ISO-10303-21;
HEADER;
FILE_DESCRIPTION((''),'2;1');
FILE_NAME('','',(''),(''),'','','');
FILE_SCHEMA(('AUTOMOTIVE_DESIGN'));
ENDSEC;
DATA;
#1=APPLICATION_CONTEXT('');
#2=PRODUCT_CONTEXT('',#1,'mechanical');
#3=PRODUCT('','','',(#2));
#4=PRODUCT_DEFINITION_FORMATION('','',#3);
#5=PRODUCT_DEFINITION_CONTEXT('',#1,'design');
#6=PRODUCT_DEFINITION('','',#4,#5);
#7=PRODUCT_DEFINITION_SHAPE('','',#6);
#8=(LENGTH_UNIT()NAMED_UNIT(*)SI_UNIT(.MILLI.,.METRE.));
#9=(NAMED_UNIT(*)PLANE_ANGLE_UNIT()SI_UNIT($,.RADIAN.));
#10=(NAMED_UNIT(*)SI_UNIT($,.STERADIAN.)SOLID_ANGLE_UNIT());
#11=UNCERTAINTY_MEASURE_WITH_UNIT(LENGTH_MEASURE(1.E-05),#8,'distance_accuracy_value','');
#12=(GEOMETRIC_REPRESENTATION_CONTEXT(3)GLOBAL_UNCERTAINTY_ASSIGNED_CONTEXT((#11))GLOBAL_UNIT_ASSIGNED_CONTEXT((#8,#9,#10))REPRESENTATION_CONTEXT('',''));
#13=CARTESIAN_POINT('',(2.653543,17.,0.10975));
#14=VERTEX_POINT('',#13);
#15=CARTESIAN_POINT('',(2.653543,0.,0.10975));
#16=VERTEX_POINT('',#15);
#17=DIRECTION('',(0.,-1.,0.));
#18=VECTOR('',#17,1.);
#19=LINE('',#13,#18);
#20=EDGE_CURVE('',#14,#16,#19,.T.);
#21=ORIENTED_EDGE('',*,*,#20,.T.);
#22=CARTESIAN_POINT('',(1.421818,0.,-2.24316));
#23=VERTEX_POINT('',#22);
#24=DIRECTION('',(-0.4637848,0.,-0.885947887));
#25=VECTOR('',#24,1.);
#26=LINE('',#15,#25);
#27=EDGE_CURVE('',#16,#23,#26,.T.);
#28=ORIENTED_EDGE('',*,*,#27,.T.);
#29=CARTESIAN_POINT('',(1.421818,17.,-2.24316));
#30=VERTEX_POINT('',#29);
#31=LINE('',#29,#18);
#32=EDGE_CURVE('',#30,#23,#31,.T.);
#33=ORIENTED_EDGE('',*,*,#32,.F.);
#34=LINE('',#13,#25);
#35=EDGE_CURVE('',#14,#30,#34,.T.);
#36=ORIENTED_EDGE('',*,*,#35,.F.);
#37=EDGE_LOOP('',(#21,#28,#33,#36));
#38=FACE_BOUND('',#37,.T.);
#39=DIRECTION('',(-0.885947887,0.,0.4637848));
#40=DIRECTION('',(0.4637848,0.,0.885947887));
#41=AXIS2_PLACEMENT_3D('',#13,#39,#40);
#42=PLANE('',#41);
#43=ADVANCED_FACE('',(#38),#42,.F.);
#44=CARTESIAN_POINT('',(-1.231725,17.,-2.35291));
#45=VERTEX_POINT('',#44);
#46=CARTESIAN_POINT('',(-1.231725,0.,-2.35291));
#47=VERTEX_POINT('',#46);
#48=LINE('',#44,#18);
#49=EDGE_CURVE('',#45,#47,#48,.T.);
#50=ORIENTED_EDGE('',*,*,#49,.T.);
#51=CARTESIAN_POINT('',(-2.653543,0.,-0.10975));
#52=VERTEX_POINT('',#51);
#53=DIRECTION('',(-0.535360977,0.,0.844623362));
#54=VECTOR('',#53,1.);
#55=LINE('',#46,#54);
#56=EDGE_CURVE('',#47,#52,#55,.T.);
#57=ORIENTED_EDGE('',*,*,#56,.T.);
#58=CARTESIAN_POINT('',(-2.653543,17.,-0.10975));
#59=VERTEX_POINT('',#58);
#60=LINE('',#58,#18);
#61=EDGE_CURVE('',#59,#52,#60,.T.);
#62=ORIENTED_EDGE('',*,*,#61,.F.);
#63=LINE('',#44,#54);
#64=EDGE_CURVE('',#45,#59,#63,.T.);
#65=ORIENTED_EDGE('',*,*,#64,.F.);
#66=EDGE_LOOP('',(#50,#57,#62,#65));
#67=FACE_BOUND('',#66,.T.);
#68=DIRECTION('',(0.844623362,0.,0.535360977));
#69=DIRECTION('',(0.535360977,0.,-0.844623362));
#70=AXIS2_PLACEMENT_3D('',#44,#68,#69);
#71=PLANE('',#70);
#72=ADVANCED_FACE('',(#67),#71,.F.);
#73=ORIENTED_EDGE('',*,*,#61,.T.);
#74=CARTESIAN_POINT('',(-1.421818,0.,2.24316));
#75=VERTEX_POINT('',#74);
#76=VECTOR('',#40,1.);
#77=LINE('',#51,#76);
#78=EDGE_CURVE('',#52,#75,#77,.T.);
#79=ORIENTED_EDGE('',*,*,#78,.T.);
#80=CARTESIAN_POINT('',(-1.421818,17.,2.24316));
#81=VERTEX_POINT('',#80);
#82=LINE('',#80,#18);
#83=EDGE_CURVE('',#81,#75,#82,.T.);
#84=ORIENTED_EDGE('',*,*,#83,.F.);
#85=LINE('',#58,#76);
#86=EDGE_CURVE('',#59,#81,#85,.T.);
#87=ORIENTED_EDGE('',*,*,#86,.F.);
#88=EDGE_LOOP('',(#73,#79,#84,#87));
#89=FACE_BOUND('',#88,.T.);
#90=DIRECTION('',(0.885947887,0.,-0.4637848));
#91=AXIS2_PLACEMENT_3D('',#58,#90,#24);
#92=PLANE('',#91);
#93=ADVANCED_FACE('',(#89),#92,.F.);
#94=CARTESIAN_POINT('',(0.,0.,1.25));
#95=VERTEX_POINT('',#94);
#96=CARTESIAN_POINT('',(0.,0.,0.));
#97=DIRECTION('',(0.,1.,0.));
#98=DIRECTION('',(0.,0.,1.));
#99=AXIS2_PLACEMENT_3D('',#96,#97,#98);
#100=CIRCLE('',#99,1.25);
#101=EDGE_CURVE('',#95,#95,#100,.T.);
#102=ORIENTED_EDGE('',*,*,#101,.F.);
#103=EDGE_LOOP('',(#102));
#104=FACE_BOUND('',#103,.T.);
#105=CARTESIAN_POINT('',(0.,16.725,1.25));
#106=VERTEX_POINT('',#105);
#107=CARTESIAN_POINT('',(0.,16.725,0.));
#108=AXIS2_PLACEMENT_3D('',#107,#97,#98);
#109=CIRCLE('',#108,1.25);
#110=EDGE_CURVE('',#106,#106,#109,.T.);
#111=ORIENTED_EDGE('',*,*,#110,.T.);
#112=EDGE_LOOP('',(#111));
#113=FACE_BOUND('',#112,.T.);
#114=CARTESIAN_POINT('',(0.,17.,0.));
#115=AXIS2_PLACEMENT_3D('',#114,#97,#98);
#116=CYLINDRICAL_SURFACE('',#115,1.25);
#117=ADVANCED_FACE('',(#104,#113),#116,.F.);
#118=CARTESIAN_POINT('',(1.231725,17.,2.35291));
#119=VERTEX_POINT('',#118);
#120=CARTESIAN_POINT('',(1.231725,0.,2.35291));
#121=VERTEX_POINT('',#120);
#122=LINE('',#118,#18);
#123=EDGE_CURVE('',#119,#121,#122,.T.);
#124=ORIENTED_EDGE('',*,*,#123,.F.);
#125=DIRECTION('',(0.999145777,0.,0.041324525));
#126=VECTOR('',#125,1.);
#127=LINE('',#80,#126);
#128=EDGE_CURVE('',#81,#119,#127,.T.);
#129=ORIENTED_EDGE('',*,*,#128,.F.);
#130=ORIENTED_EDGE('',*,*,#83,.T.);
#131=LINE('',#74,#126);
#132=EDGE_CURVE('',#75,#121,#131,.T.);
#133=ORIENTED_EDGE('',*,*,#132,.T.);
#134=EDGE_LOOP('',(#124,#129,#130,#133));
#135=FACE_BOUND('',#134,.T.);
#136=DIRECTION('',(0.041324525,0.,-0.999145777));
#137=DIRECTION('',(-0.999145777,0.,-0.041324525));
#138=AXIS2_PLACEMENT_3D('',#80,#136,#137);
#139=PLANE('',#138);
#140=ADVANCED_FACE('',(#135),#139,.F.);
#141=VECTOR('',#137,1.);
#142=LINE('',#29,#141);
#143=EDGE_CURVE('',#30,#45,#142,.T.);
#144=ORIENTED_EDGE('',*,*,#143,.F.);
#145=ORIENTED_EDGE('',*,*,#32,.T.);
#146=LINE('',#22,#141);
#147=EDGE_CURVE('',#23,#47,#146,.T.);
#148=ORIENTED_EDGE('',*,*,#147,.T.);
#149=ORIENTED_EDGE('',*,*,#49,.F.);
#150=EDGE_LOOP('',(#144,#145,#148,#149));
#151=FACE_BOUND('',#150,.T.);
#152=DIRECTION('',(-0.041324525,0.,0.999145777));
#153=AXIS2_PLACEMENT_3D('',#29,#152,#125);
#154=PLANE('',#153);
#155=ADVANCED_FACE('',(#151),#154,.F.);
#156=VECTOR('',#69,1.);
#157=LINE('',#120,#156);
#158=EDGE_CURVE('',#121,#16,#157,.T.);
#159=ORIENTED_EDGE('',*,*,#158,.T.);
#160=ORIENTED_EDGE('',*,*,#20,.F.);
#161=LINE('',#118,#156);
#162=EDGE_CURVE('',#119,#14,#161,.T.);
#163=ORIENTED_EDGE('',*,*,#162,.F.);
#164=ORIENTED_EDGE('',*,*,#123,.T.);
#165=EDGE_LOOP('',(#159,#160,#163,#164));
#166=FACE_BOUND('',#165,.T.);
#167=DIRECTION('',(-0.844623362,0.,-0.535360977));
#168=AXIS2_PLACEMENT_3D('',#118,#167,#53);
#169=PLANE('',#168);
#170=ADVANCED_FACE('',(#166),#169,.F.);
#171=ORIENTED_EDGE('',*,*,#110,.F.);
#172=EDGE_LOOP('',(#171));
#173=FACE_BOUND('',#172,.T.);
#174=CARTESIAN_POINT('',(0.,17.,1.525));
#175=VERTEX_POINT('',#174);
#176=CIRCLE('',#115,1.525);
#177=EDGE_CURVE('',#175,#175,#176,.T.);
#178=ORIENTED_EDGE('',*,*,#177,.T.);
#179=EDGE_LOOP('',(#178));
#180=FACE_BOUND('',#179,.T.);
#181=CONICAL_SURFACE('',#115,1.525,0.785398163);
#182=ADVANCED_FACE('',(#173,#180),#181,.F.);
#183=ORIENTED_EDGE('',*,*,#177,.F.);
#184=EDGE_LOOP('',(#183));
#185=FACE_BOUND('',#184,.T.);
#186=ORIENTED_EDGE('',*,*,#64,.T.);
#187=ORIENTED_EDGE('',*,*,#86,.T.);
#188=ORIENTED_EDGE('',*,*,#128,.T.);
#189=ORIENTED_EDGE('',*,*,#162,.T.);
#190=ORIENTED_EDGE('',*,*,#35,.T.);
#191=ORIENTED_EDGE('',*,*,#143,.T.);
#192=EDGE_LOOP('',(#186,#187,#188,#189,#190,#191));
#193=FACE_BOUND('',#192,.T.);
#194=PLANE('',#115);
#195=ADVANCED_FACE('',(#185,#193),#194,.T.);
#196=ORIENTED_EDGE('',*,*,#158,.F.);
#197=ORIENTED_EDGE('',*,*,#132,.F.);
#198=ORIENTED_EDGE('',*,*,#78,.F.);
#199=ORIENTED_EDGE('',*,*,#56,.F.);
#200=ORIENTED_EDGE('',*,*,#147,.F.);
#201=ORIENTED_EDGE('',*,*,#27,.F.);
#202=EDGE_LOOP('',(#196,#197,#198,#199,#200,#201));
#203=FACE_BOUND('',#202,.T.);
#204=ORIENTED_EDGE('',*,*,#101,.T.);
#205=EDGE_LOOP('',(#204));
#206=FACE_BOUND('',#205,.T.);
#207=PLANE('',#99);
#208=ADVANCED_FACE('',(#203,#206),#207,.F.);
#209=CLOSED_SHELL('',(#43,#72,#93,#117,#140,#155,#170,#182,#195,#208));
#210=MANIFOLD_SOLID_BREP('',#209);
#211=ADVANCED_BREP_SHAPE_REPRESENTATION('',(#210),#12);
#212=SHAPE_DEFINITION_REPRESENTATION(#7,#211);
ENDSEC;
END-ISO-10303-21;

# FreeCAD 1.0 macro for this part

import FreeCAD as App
import Part
import Sketcher
from FreeCAD import Vector

doc = App.newDocument("Part")
body = doc.addObject("PartDesign::Body", "Body")

# Sketch on XZ plane
sketch1 = body.newObject("Sketcher::SketchObject", "Sketch")
sketch1.AttachmentSupport = (doc.getObject("XZ_Plane"), [""])
sketch1.MapMode = "FlatFace"
sketch1.addGeometry(Part.LineSegment(Vector(1.231725, 2.35291, 0), Vector(2.653543, 0.10975, 0)), False)
sketch1.addGeometry(Part.LineSegment(Vector(2.653543, 0.10975, 0), Vector(1.421818, -2.24316, 0)), False)
sketch1.addGeometry(Part.LineSegment(Vector(1.421818, -2.24316, 0), Vector(-1.231725, -2.35291, 0)), False)
sketch1.addGeometry(Part.LineSegment(Vector(-1.231725, -2.35291, 0), Vector(-2.653543, -0.10975, 0)), False)
sketch1.addGeometry(Part.LineSegment(Vector(-2.653543, -0.10975, 0), Vector(-1.421818, 2.24316, 0)), False)
sketch1.addGeometry(Part.LineSegment(Vector(-1.421818, 2.24316, 0), Vector(1.231725, 2.35291, 0)), False)
sketch1.addGeometry(Part.Circle(Vector(0, 0, 0), Vector(0, 0, 1), 1.1), False)
sketch1.addConstraint(Sketcher.Constraint("Coincident", 0, 2, 1, 1))
sketch1.addConstraint(Sketcher.Constraint("Coincident", 1, 2, 2, 1))
sketch1.addConstraint(Sketcher.Constraint("Coincident", 2, 2, 3, 1))
sketch1.addConstraint(Sketcher.Constraint("Coincident", 3, 2, 4, 1))
sketch1.addConstraint(Sketcher.Constraint("Coincident", 4, 2, 5, 1))
sketch1.addConstraint(Sketcher.Constraint("Coincident", 5, 2, 0, 1))
sketch1.addConstraint(Sketcher.Constraint("Coincident", 6, 3, -1, 1))
sketch1.addConstraint(Sketcher.Constraint("Symmetric", 0, 2, 3, 2, -1, 1))
sketch1.addConstraint(Sketcher.Constraint("Symmetric", 1, 2, 4, 2, -1, 1))
sketch1.addConstraint(Sketcher.Constraint("Symmetric", 2, 2, 5, 2, -1, 1))
sketch1.addConstraint(Sketcher.Constraint("Equal", 0, 1))
sketch1.addConstraint(Sketcher.Constraint("Equal", 1, 2))
sketch1.addConstraint(Sketcher.Constraint("Diameter", 6, 2.2))
sketch1.addConstraint(Sketcher.Constraint("DistanceY", 3, 2, 0, 2, 0.2195))
sketch1.addConstraint(Sketcher.Constraint("Distance", 0, 2.655811))
sketch1.addConstraint(Sketcher.Constraint("DistanceY", 1, 2, -1, 1, 2.24316))
sketch1.addConstraint(Sketcher.Constraint("DistanceY", 2, 2, -1, 1, 2.35291))
pad1 = body.newObject("PartDesign::Pad", "Pad")
pad1.Profile = sketch1
pad1.Length = 17
pad1.Reversed = True

# Sketch on XZ plane
sketch2 = body.newObject("Sketcher::SketchObject", "Sketch001")
sketch2.AttachmentSupport = (doc.getObject("XZ_Plane"), [""])
sketch2.MapMode = "FlatFace"
sketch2.AttachmentOffset = App.Placement(Vector(0, 0, -17), App.Rotation())
sketch2.addGeometry(Part.Circle(Vector(0, 0, 0), Vector(0, 0, 1), 1.25), False)
sketch2.addConstraint(Sketcher.Constraint("Coincident", 0, 3, -1, 1))
sketch2.addConstraint(Sketcher.Constraint("Diameter", 0, 2.5))
doc.recompute()
hole = body.newObject("PartDesign::Hole", "Hole")
hole.Profile = sketch2
hole.ThreadType = "None"
hole.Diameter = 2.5
hole.DepthType = "ThroughAll"
hole.HoleCutType = "Countersink"
hole.HoleCutDiameter = 3.05
hole.HoleCutCountersinkAngle = 90
hole.Reversed = True

doc.recompute()
